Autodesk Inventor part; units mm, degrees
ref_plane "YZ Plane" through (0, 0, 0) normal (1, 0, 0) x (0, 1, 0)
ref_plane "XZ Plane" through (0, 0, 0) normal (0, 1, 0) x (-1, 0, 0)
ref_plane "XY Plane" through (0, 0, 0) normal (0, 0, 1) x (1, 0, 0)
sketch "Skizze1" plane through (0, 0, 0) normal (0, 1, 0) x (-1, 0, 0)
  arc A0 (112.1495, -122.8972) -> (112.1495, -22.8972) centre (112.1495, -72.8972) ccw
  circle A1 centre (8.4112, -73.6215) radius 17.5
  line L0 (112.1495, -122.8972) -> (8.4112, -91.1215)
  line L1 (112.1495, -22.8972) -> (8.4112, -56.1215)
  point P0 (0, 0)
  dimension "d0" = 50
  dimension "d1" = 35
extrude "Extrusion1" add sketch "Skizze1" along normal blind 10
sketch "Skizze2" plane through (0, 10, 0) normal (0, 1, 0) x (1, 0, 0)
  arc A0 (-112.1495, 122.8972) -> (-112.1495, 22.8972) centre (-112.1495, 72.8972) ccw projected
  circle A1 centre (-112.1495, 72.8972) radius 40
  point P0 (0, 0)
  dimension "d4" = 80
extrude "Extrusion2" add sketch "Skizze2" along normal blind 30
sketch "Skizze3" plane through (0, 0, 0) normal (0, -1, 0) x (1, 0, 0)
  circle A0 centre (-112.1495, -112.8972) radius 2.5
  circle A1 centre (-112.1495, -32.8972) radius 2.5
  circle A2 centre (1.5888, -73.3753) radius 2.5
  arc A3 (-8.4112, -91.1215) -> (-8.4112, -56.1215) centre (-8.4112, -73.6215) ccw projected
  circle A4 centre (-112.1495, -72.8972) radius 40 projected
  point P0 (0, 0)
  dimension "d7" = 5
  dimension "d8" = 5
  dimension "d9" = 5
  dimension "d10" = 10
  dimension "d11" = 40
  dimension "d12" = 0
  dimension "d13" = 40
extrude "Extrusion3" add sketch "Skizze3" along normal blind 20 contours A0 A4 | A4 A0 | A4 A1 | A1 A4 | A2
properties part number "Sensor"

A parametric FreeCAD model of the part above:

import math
import FreeCAD as App
import Part
import Sketcher
from FreeCAD import Vector
Q = App.Units.Quantity

doc = App.newDocument("Part")
body = doc.addObject("PartDesign::Body", "Body")

# Sketch on XZ plane
sketch1 = body.newObject("Sketcher::SketchObject", "Sketch")
sketch1.AttachmentSupport = (doc.getObject("XZ_Plane"), [""])
sketch1.MapMode = "FlatFace"
sketch1.addGeometry(Part.LineSegment(Vector(-8, -91, 0), Vector(-112, -123, 0)), False)
sketch1.addGeometry(Part.ArcOfCircle(Part.Circle(Vector(-112, -73, 0), Vector(0, 0, 1), 50), math.radians(90), math.radians(270)), False)
sketch1.addGeometry(Part.LineSegment(Vector(-112, -23, 0), Vector(-8, -56, 0)), False)
sketch1.addGeometry(Part.ArcOfCircle(Part.Circle(Vector(-8, -74, 0), Vector(0, 0, 1), 18), math.radians(-90), math.radians(90)), False)
sketch1.addConstraint(Sketcher.Constraint("Coincident", 0, 2, 1, 2))
sketch1.addConstraint(Sketcher.Constraint("Coincident", 1, 1, 2, 1))
sketch1.addConstraint(Sketcher.Constraint("Coincident", 2, 2, 3, 2))
sketch1.addConstraint(Sketcher.Constraint("Coincident", 3, 1, 0, 1))
sketch1.addConstraint(Sketcher.Constraint("Vertical", 1, 3, 0, 2))
sketch1.addConstraint(Sketcher.Constraint("Vertical", 0, 2, 1, 1))
sketch1.addConstraint(Sketcher.Constraint("Vertical", 3, 3, 2, 2))
sketch1.addConstraint(Sketcher.Constraint("Vertical", 2, 2, 3, 1))
sketch1.addConstraint(Sketcher.Constraint("Radius", 1, Q("50 mm")))
sketch1.addConstraint(Sketcher.Constraint("Radius", 3, Q("17.5 mm")))
sketch1.addConstraint(Sketcher.Constraint("Angle", 0, Q("-162.9698 deg")))
sketch1.addConstraint(Sketcher.Constraint("Distance", 0, Q("108.4958 mm")))
sketch1.addConstraint(Sketcher.Constraint("DistanceX", 1, 3, -1, 1, Q("112.1495 mm")))
sketch1.addConstraint(Sketcher.Constraint("DistanceY", 1, 3, -1, 1, Q("72.8972 mm")))
pad1 = body.newObject("PartDesign::Pad", "Pad")
pad1.Profile = sketch1
pad1.Length = 10
pad1.Reversed = True

# Sketch on XZ plane
sketch2 = body.newObject("Sketcher::SketchObject", "Sketch001")
sketch2.AttachmentSupport = (doc.getObject("XZ_Plane"), [""])
sketch2.MapMode = "FlatFace"
sketch2.AttachmentOffset = App.Placement(Vector(0, 0, -10), App.Rotation())
sketch2.addGeometry(Part.Circle(Vector(-112, -73, 0), Vector(0, 0, 1), 40), False)
sketch2.addConstraint(Sketcher.Constraint("Diameter", 0, Q("80 mm")))
sketch2.addConstraint(Sketcher.Constraint("DistanceX", 0, 3, -1, 1, Q("112.1495 mm")))
sketch2.addConstraint(Sketcher.Constraint("DistanceY", 0, 3, -1, 1, Q("72.8972 mm")))
pad2 = body.newObject("PartDesign::Pad", "Pad001")
pad2.Profile = sketch2
pad2.Length = 30
pad2.Reversed = True

# Sketch on XZ plane
sketch3 = body.newObject("Sketcher::SketchObject", "Sketch002")
sketch3.AttachmentSupport = (doc.getObject("XZ_Plane"), [""])
sketch3.MapMode = "FlatFace"
sketch3.addGeometry(Part.Circle(Vector(-112.1, -112.9, 0), Vector(0, 0, 1), 2.5), False)
sketch3.addGeometry(Part.Circle(Vector(-112.1, -32.9, 0), Vector(0, 0, 1), 2.5), False)
sketch3.addGeometry(Part.Circle(Vector(1.6, -73.4, 0), Vector(0, 0, 1), 2.5), False)
sketch3.addConstraint(Sketcher.Constraint("Equal", 0, 1))
sketch3.addConstraint(Sketcher.Constraint("Equal", 1, 2))
sketch3.addConstraint(Sketcher.Constraint("Vertical", 0, 3, 1, 3))
sketch3.addConstraint(Sketcher.Constraint("Diameter", 0, Q("5 mm")))
sketch3.addConstraint(Sketcher.Constraint("DistanceY", 0, 3, 1, 3, Q("80 mm")))
sketch3.addConstraint(Sketcher.Constraint("DistanceY", 0, 3, 2, 3, Q("39.522 mm")))
sketch3.addConstraint(Sketcher.Constraint("DistanceX", 0, 3, -1, 1, Q("112.1495 mm")))
sketch3.addConstraint(Sketcher.Constraint("DistanceY", 0, 3, -1, 1, Q("112.8972 mm")))
sketch3.addConstraint(Sketcher.Constraint("DistanceX", -1, 1, 2, 3, Q("1.5888 mm")))
pad3 = body.newObject("PartDesign::Pad", "Pad002")
pad3.Profile = sketch3
pad3.Length = 20

doc.recompute()
